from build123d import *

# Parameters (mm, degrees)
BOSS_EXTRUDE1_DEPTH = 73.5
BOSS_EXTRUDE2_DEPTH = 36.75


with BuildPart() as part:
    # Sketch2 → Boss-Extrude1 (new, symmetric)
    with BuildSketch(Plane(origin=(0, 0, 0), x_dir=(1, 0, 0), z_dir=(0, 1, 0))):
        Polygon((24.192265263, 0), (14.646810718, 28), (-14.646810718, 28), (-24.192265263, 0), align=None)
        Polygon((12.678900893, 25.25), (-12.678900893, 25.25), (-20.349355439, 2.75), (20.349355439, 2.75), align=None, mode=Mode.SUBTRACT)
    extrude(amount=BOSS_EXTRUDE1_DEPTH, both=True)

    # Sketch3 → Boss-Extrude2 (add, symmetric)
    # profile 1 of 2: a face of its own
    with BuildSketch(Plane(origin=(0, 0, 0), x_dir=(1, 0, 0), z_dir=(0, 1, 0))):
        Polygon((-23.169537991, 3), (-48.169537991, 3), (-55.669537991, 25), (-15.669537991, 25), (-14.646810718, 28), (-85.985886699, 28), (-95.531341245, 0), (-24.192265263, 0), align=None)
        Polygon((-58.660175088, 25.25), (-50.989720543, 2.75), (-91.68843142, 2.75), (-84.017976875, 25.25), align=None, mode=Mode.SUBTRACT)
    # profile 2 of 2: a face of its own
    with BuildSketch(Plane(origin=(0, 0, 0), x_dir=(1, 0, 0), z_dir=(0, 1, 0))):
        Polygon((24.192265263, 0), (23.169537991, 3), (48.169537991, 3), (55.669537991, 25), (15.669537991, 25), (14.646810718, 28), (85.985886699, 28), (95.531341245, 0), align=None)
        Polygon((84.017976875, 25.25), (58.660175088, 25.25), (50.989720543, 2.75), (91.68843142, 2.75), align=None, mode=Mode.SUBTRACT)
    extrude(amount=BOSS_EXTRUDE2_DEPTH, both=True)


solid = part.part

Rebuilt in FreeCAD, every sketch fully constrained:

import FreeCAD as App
import Part
import Sketcher

V = App.Vector


def add_polygon(sketch, points):
    """Adds a closed chain of lines whose ends are joined by coincident constraints."""
    first, n = sketch.GeometryCount, len(points)
    for a, b in zip(points, points[1:] + points[:1]):
        sketch.addGeometry(Part.LineSegment(App.Vector(*a, 0), App.Vector(*b, 0)), False)
    for i in range(n):
        sketch.addConstraint(Sketcher.Constraint("Coincident", first + i, 2, first + (i + 1) % n, 1))

doc = App.newDocument("Part")
params = doc.addObject("Spreadsheet::Sheet", "Params")
for row, (alias, value) in enumerate([
    ("pad1_length", "147 mm"),
    ("sketch2_width", "25 mm"),
    ("sketch2_width2", "40 mm"),
    ("pad2_length", "73.5 mm"),
], start=1):
    params.set(f"A{row}", alias)
    params.set(f"B{row}", "=" + value)
    params.setAlias(f"B{row}", alias)

body = doc.addObject("PartDesign::Body", "Body")

# Sketch on XZ plane
sketch1 = doc.addObject("Sketcher::SketchObject", "Sketch")
body.addObject(sketch1)
sketch1.AttachmentSupport = (doc.XZ_Plane, [""])
sketch1.MapMode = "FlatFace"
add_polygon(sketch1, [(24.192265, 0), (14.646811, -28), (-14.646811, -28), (-24.192265, 0)])  # lines 0-3
add_polygon(sketch1, [(-12.678901, -25.25), (12.678901, -25.25), (20.349355, -2.75), (-20.349355, -2.75)])  # lines 4-7
sketch1.addConstraint([
    Sketcher.Constraint("Horizontal", 1),
    Sketcher.Constraint("Horizontal", 3),
    Sketcher.Constraint("Horizontal", 4),
    Sketcher.Constraint("Horizontal", 6),
    Sketcher.Constraint("Symmetric", 2, 2, 3, 2, -1, 1),
    Sketcher.Constraint("Parallel", 0, 5),
    Sketcher.Constraint("Parallel", 2, 7),
    Sketcher.Constraint("Equal", 0, 2),
    Sketcher.Constraint("DistanceY", 0, 2, -1, 1, 28.0),
    Sketcher.Constraint("DistanceY", 4, 2, 5, 2, 22.5),
    Sketcher.Constraint("DistanceY", 4, 2, -1, 1, 25.25),
    Sketcher.Constraint("DistanceX", 4, 1, 4, 2, 25.357802),
    Sketcher.Constraint("DistanceX", 1, 2, 1, 1, 29.293621),
    Sketcher.Constraint("DistanceX", 3, 1, 3, 2, 48.384531),
    Sketcher.Constraint("DistanceX", -1, 1, 4, 2, 12.678901),
])
pad1 = doc.addObject("PartDesign::Pad", "Pad")
body.addObject(pad1)
pad1.Profile = sketch1
pad1.setExpression("Length", "Params.pad1_length")
pad1.Midplane = True

# Sketch on XZ plane
sketch2 = doc.addObject("Sketcher::SketchObject", "Sketch001")
body.addObject(sketch2)
sketch2.AttachmentSupport = (doc.XZ_Plane, [""])
sketch2.MapMode = "FlatFace"
add_polygon(sketch2, [(-23.169538, -3), (-48.169538, -3), (-55.669538, -25), (-15.669538, -25), (-14.646811, -28), (-85.985887, -28), (-95.531341, 0), (-24.192265, 0)])  # lines 0-7
add_polygon(sketch2, [(-84.017977, -25.25), (-58.660175, -25.25), (-50.989721, -2.75), (-91.688431, -2.75)])  # lines 8-11
add_polygon(sketch2, [(23.169538, -3), (24.192265, 0), (95.531341, 0), (85.985887, -28), (14.646811, -28), (15.669538, -25), (55.669538, -25), (48.169538, -3)])  # lines 12-19
add_polygon(sketch2, [(84.017977, -25.25), (91.688431, -2.75), (50.989721, -2.75), (58.660175, -25.25)])  # lines 20-23
sketch2.addConstraint([
    Sketcher.Constraint("Horizontal", 0),
    Sketcher.Constraint("Horizontal", 2),
    Sketcher.Constraint("Horizontal", 4),
    Sketcher.Constraint("Horizontal", 6),
    Sketcher.Constraint("Horizontal", 8),
    Sketcher.Constraint("Horizontal", 10),
    Sketcher.Constraint("Horizontal", 13),
    Sketcher.Constraint("Horizontal", 15),
    Sketcher.Constraint("Horizontal", 17),
    Sketcher.Constraint("Horizontal", 19),
    Sketcher.Constraint("Horizontal", 21),
    Sketcher.Constraint("Horizontal", 23),
    Sketcher.Constraint("Symmetric", 6, 2, 12, 2, -1, 1),
    Sketcher.Constraint("Symmetric", 5, 2, 13, 2, -2),
    Sketcher.Constraint("Symmetric", 4, 2, 14, 2, -2),
    Sketcher.Constraint("Symmetric", 2, 2, 16, 2, -2),
    Sketcher.Constraint("Symmetric", 0, 2, 18, 2, -2),
    Sketcher.Constraint("Symmetric", 10, 2, 20, 2, -2),
    Sketcher.Constraint("Symmetric", 8, 2, 22, 2, -2),
    Sketcher.Constraint("Parallel", 3, 5),
    Sketcher.Constraint("Parallel", 5, 7),
    Sketcher.Constraint("Parallel", 1, 9),
    Sketcher.Constraint("Parallel", 7, 11),
    Sketcher.Constraint("Parallel", 9, 12),
    Sketcher.Constraint("Parallel", 12, 14),
    Sketcher.Constraint("Parallel", 14, 16),
    Sketcher.Constraint("Parallel", 11, 18),
    Sketcher.Constraint("Parallel", 16, 20),
    Sketcher.Constraint("Parallel", 18, 22),
    Sketcher.Constraint("Equal", 4, 6),
    Sketcher.Constraint("Equal", 3, 7),
    Sketcher.Constraint("DistanceX", 0, 2, 0, 1, 25.0),
    Sketcher.Constraint("DistanceX", 2, 1, 2, 2, 40.0),
    Sketcher.Constraint("DistanceY", 0, 2, -1, 1, 3.0),
    Sketcher.Constraint("DistanceY", 1, 2, -1, 1, 25.0),
    Sketcher.Constraint("DistanceY", 8, 2, 9, 2, 22.5),
    Sketcher.Constraint("DistanceY", 8, 2, -1, 1, 25.25),
    Sketcher.Constraint("DistanceX", 8, 1, 8, 2, 25.357802),
    Sketcher.Constraint("DistanceX", 4, 2, 4, 1, 71.339076),
    Sketcher.Constraint("DistanceX", 3, 2, -1, 1, 14.646811),
    Sketcher.Constraint("DistanceX", 9, 2, -1, 1, 50.989721),
])
sketch2.setExpression("Constraints[55]", "Params.sketch2_width")
sketch2.setExpression("Constraints[56]", "Params.sketch2_width2")
pad2 = doc.addObject("PartDesign::Pad", "Pad001")
body.addObject(pad2)
pad2.Profile = sketch2
pad2.setExpression("Length", "Params.pad2_length")
pad2.Midplane = True

doc.recompute()
